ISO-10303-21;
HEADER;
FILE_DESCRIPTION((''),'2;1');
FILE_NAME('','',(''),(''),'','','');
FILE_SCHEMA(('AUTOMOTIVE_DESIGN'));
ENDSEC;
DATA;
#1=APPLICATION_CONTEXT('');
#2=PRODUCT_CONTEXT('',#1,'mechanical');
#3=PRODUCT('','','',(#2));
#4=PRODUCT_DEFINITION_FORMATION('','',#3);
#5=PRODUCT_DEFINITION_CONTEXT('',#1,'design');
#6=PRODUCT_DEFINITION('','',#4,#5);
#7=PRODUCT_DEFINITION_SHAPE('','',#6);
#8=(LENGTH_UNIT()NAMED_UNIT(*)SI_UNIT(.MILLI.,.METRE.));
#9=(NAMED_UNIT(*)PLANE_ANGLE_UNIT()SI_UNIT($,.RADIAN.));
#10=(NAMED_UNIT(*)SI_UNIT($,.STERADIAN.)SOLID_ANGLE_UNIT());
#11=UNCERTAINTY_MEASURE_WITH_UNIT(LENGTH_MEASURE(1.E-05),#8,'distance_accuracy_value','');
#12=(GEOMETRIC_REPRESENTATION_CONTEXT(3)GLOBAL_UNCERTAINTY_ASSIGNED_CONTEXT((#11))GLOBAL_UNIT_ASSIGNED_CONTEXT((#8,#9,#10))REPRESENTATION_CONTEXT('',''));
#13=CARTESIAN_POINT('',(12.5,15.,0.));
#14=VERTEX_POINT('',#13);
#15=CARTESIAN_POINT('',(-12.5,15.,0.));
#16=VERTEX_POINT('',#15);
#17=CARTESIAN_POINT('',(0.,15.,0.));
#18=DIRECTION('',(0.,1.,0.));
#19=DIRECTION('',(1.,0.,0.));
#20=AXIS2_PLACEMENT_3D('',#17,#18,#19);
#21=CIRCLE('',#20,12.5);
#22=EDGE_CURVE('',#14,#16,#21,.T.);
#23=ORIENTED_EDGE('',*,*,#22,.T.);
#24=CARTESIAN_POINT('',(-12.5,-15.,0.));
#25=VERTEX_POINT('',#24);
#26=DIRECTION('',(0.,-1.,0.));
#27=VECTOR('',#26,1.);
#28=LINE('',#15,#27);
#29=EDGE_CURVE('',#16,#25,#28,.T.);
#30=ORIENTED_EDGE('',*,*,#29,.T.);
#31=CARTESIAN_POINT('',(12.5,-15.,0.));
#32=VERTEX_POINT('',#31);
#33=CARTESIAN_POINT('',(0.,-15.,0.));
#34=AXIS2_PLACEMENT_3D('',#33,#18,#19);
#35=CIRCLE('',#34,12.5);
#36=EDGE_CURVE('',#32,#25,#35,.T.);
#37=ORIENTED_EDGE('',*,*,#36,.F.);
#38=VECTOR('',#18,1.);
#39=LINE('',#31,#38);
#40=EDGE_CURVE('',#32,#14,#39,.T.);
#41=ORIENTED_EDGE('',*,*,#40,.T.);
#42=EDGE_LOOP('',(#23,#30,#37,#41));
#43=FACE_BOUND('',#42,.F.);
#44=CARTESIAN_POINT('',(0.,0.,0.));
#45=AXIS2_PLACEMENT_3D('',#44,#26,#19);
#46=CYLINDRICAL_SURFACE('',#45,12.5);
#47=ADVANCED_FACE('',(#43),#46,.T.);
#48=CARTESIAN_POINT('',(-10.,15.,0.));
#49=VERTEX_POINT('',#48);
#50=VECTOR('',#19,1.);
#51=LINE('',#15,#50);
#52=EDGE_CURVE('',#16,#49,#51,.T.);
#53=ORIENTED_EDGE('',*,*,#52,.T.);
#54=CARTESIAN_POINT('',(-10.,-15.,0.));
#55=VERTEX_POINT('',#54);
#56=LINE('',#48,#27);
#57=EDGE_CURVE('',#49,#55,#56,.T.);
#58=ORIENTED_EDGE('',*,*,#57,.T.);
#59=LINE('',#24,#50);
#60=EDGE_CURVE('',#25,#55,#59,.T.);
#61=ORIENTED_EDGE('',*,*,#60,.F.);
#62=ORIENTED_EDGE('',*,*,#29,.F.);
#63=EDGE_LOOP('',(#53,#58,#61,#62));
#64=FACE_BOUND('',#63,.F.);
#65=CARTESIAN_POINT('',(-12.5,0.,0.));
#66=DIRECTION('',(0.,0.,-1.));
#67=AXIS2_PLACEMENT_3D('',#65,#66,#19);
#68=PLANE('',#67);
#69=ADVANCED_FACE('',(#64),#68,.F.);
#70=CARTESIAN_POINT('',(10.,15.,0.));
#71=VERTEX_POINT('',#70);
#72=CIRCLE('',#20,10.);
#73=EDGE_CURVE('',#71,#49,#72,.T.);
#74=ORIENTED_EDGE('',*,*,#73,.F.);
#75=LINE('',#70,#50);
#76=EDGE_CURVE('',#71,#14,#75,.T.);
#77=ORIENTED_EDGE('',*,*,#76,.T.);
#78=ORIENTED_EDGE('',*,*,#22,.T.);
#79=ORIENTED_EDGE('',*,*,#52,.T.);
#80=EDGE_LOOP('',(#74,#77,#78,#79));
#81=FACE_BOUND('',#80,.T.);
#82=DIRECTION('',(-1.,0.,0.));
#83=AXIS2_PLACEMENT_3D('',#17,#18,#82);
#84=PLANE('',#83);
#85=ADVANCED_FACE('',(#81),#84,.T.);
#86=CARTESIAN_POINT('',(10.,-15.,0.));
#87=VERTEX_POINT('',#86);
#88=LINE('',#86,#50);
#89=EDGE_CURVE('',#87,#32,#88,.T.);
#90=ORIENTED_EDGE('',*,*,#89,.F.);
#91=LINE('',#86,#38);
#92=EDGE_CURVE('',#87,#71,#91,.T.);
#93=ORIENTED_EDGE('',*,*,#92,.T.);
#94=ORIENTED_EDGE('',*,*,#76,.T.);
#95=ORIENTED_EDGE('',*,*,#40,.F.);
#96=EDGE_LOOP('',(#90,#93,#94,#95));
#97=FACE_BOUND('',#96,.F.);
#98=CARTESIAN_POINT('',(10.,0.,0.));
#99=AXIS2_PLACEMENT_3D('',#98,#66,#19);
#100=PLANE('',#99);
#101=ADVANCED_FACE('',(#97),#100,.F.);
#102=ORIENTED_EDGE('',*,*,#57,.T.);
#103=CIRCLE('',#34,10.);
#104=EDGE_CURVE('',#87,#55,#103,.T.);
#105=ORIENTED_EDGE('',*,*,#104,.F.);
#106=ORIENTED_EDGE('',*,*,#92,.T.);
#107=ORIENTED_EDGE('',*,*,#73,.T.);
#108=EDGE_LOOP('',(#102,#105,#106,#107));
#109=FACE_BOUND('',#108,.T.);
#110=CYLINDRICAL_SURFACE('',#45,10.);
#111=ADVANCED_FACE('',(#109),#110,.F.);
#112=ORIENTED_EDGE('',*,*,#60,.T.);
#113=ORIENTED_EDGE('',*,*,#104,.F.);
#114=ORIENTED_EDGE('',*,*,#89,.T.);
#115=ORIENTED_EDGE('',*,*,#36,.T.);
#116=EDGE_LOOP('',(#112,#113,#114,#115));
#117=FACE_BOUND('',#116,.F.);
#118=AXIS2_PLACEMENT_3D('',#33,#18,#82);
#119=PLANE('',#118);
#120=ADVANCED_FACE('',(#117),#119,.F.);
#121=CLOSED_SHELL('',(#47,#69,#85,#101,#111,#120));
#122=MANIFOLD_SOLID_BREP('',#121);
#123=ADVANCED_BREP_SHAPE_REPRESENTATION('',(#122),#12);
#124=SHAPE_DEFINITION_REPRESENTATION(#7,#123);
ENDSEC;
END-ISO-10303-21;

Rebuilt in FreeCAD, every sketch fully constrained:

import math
import FreeCAD as App
import Part
import Sketcher

V = App.Vector

doc = App.newDocument("Part")
body = doc.addObject("PartDesign::Body", "Body")

# Sketch on XZ plane
sketch1 = body.newObject("Sketcher::SketchObject", "Sketch")
sketch1.AttachmentSupport = (doc.getObject("XZ_Plane"), [""])
sketch1.MapMode = "FlatFace"
sketch1.addGeometry([
    Part.ArcOfCircle(Part.Circle(V(0, 0, 0), V(0, 0, 1), 10), math.radians(180), math.radians(360)),
    Part.LineSegment(V(10, 0, 0), V(12.5, 0, 0)),
    Part.ArcOfCircle(Part.Circle(V(0, 0, 0), V(0, 0, 1), 12.5), math.radians(180), math.radians(360)),
    Part.LineSegment(V(-12.5, 0, 0), V(-10, 0, 0)),
], False)
sketch1.addConstraint([
    Sketcher.Constraint("Coincident", 0, 2, 1, 1),
    Sketcher.Constraint("Coincident", 1, 2, 2, 2),
    Sketcher.Constraint("Coincident", 2, 1, 3, 1),
    Sketcher.Constraint("Coincident", 3, 2, 0, 1),
    Sketcher.Constraint("Horizontal", 1),
    Sketcher.Constraint("Horizontal", 3),
    Sketcher.Constraint("Coincident", 0, 3, -1, 1),
    Sketcher.Constraint("Coincident", 2, 3, -1, 1),
    Sketcher.Constraint("PointOnObject", 0, 2, -1),
    Sketcher.Constraint("PointOnObject", 2, 1, -1),
    Sketcher.Constraint("Radius", 0, 10.0),
    Sketcher.Constraint("Radius", 2, 12.5),
])
pad1 = body.newObject("PartDesign::Pad", "Pad")
pad1.Profile = sketch1
pad1.Length = 30
pad1.Midplane = True

doc.recompute()
